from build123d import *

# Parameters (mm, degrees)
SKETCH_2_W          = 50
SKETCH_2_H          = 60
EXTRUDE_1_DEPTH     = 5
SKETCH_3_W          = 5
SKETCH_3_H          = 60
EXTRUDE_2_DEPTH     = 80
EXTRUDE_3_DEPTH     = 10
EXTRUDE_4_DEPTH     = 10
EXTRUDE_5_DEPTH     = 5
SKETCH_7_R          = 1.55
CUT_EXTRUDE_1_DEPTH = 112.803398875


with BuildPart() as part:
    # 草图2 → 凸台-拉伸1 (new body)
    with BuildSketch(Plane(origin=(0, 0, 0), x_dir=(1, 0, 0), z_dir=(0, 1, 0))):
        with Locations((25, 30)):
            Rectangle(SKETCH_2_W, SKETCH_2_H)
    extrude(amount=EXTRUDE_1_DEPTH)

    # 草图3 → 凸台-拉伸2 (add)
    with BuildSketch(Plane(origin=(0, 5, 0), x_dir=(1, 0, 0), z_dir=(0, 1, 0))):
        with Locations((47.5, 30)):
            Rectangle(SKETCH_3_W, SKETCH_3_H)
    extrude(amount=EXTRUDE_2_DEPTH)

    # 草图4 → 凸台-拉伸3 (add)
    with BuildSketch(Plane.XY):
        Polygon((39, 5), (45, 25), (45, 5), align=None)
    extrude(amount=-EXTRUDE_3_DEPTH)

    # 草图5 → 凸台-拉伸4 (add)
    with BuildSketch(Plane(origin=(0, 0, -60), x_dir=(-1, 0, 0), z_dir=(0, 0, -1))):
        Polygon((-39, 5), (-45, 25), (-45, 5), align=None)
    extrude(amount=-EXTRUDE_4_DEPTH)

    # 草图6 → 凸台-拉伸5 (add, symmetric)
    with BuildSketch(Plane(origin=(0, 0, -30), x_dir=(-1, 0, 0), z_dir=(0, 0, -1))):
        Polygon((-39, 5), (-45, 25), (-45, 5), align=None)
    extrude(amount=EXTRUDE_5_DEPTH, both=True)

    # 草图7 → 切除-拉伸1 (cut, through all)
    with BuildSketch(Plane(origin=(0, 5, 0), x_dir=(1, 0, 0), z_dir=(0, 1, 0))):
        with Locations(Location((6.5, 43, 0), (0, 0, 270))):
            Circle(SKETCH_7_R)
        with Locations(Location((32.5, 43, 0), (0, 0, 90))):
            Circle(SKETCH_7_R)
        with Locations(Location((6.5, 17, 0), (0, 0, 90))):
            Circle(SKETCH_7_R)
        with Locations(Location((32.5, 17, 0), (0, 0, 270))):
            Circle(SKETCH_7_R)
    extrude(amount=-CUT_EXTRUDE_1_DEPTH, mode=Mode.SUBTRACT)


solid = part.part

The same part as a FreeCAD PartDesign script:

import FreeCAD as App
import Part
import Sketcher
from FreeCAD import Vector


def add_polygon(sketch, points):
    """Adds a closed chain of lines whose ends are joined by coincident constraints."""
    first, n = sketch.GeometryCount, len(points)
    for a, b in zip(points, points[1:] + points[:1]):
        sketch.addGeometry(Part.LineSegment(App.Vector(*a, 0), App.Vector(*b, 0)), False)
    for i in range(n):
        sketch.addConstraint(Sketcher.Constraint("Coincident", first + i, 2, first + (i + 1) % n, 1))

doc = App.newDocument("Part")
body = doc.addObject("PartDesign::Body", "Body")

# Sketch on XZ plane
sketch1 = body.newObject("Sketcher::SketchObject", "Sketch")
sketch1.AttachmentSupport = (doc.getObject("XZ_Plane"), [""])
sketch1.MapMode = "FlatFace"
add_polygon(sketch1, [(0, -60), (0, 0), (50, 0), (50, -60)])  # lines 0-3
sketch1.addConstraint(Sketcher.Constraint("Vertical", 0))
sketch1.addConstraint(Sketcher.Constraint("Horizontal", 1))
sketch1.addConstraint(Sketcher.Constraint("Vertical", 2))
sketch1.addConstraint(Sketcher.Constraint("Horizontal", 3))
sketch1.addConstraint(Sketcher.Constraint("Coincident", 0, 2, -1, 1))
sketch1.addConstraint(Sketcher.Constraint("DistanceX", 1, 1, 1, 2, 50.0))
sketch1.addConstraint(Sketcher.Constraint("DistanceY", 0, 1, 0, 2, 60.0))
pad1 = body.newObject("PartDesign::Pad", "Pad")
pad1.Profile = sketch1
pad1.Length = 5
pad1.Reversed = True

# Sketch on XZ plane
sketch2 = body.newObject("Sketcher::SketchObject", "Sketch001")
sketch2.AttachmentSupport = (doc.getObject("XZ_Plane"), [""])
sketch2.MapMode = "FlatFace"
sketch2.AttachmentOffset = App.Placement(Vector(0, 0, -5), App.Rotation())
add_polygon(sketch2, [(45, -60), (45, 0), (50, 0), (50, -60)])  # lines 0-3
sketch2.addConstraint(Sketcher.Constraint("Vertical", 0))
sketch2.addConstraint(Sketcher.Constraint("Horizontal", 1))
sketch2.addConstraint(Sketcher.Constraint("Vertical", 2))
sketch2.addConstraint(Sketcher.Constraint("Horizontal", 3))
sketch2.addConstraint(Sketcher.Constraint("PointOnObject", 0, 2, -1))
sketch2.addConstraint(Sketcher.Constraint("DistanceX", 1, 1, 1, 2, 5.0))
sketch2.addConstraint(Sketcher.Constraint("DistanceY", 0, 1, 0, 2, 60.0))
sketch2.addConstraint(Sketcher.Constraint("DistanceX", -1, 1, 0, 2, 45.0))
pad2 = body.newObject("PartDesign::Pad", "Pad001")
pad2.Profile = sketch2
pad2.Length = 80
pad2.Reversed = True

# Sketch on XY plane
sketch3 = body.newObject("Sketcher::SketchObject", "Sketch002")
sketch3.AttachmentSupport = (doc.getObject("XY_Plane"), [""])
sketch3.MapMode = "FlatFace"
add_polygon(sketch3, [(45, 25), (39, 5), (45, 5)])  # lines 0-2
sketch3.addConstraint(Sketcher.Constraint("Horizontal", 1))
sketch3.addConstraint(Sketcher.Constraint("Vertical", 2))
sketch3.addConstraint(Sketcher.Constraint("DistanceX", 1, 1, 1, 2, 6.0))
sketch3.addConstraint(Sketcher.Constraint("DistanceY", 2, 1, 2, 2, 20.0))
sketch3.addConstraint(Sketcher.Constraint("DistanceX", -1, 1, 0, 2, 39.0))
sketch3.addConstraint(Sketcher.Constraint("DistanceY", -1, 1, 0, 2, 5.0))
pad3 = body.newObject("PartDesign::Pad", "Pad002")
pad3.Profile = sketch3
pad3.Length = 10
pad3.Reversed = True

# Sketch on XY plane
sketch4 = body.newObject("Sketcher::SketchObject", "Sketch003")
sketch4.AttachmentSupport = (doc.getObject("XY_Plane"), [""])
sketch4.MapMode = "FlatFace"
sketch4.AttachmentOffset = App.Placement(Vector(0, 0, -60), App.Rotation())
add_polygon(sketch4, [(39, 5), (45, 25), (45, 5)])  # lines 0-2
sketch4.addConstraint(Sketcher.Constraint("Vertical", 1))
sketch4.addConstraint(Sketcher.Constraint("Horizontal", 2))
sketch4.addConstraint(Sketcher.Constraint("DistanceX", 2, 2, 2, 1, 6.0))
sketch4.addConstraint(Sketcher.Constraint("DistanceY", 1, 2, 1, 1, 20.0))
sketch4.addConstraint(Sketcher.Constraint("DistanceX", -1, 1, 0, 2, 45.0))
sketch4.addConstraint(Sketcher.Constraint("DistanceY", -1, 1, 0, 2, 25.0))
pad4 = body.newObject("PartDesign::Pad", "Pad003")
pad4.Profile = sketch4
pad4.Length = 10

# Sketch on XY plane
sketch5 = body.newObject("Sketcher::SketchObject", "Sketch004")
sketch5.AttachmentSupport = (doc.getObject("XY_Plane"), [""])
sketch5.MapMode = "FlatFace"
sketch5.AttachmentOffset = App.Placement(Vector(0, 0, -30), App.Rotation())
add_polygon(sketch5, [(39, 5), (45, 25), (45, 5)])  # lines 0-2
sketch5.addConstraint(Sketcher.Constraint("Vertical", 1))
sketch5.addConstraint(Sketcher.Constraint("Horizontal", 2))
sketch5.addConstraint(Sketcher.Constraint("DistanceX", 2, 2, 2, 1, 6.0))
sketch5.addConstraint(Sketcher.Constraint("DistanceY", 1, 2, 1, 1, 20.0))
sketch5.addConstraint(Sketcher.Constraint("DistanceX", -1, 1, 0, 2, 45.0))
sketch5.addConstraint(Sketcher.Constraint("DistanceY", -1, 1, 0, 2, 25.0))
pad5 = body.newObject("PartDesign::Pad", "Pad004")
pad5.Profile = sketch5
pad5.Length = 10
pad5.Midplane = True

# Sketch on XZ plane
sketch6 = body.newObject("Sketcher::SketchObject", "Sketch005")
sketch6.AttachmentSupport = (doc.getObject("XZ_Plane"), [""])
sketch6.MapMode = "FlatFace"
sketch6.AttachmentOffset = App.Placement(Vector(0, 0, -5), App.Rotation())
sketch6.addGeometry(Part.Circle(Vector(6.5, -43, 0), Vector(0, 0, 1), 1.55), False)
sketch6.addGeometry(Part.Circle(Vector(32.5, -43, 0), Vector(0, 0, 1), 1.55), False)
sketch6.addGeometry(Part.Circle(Vector(6.5, -17, 0), Vector(0, 0, 1), 1.55), False)
sketch6.addGeometry(Part.Circle(Vector(32.5, -17, 0), Vector(0, 0, 1), 1.55), False)
sketch6.addConstraint(Sketcher.Constraint("Equal", 0, 1))
sketch6.addConstraint(Sketcher.Constraint("Equal", 1, 2))
sketch6.addConstraint(Sketcher.Constraint("Equal", 2, 3))
sketch6.addConstraint(Sketcher.Constraint("Horizontal", 0, 3, 1, 3))
sketch6.addConstraint(Sketcher.Constraint("Horizontal", 2, 3, 3, 3))
sketch6.addConstraint(Sketcher.Constraint("Vertical", 0, 3, 2, 3))
sketch6.addConstraint(Sketcher.Constraint("Vertical", 1, 3, 3, 3))
sketch6.addConstraint(Sketcher.Constraint("Diameter", 0, 3.1))
sketch6.addConstraint(Sketcher.Constraint("DistanceY", 0, 3, -1, 1, 43.0))
sketch6.addConstraint(Sketcher.Constraint("DistanceY", 2, 3, -1, 1, 17.0))
sketch6.addConstraint(Sketcher.Constraint("DistanceX", 0, 3, 1, 3, 26.0))
sketch6.addConstraint(Sketcher.Constraint("DistanceX", -1, 1, 0, 3, 6.5))
pocket1 = body.newObject("PartDesign::Pocket", "Pocket")
pocket1.Profile = sketch6
pocket1.Type = "ThroughAll"
pocket1.Reversed = True

doc.recompute()
